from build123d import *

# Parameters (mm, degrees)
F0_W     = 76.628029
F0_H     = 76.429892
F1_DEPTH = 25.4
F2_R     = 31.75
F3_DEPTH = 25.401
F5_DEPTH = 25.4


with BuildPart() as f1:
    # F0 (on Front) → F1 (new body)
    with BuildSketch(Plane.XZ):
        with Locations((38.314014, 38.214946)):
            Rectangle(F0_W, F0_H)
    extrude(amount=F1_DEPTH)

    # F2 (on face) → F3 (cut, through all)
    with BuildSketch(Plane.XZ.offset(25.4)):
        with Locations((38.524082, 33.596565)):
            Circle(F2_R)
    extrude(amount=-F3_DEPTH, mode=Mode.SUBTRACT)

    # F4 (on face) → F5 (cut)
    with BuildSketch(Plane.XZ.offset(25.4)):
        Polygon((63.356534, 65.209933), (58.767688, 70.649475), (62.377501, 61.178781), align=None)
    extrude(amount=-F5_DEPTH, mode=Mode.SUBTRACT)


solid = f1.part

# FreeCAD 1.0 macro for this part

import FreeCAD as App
import Part
import Sketcher
from FreeCAD import Vector
Q = App.Units.Quantity

doc = App.newDocument("Part")
params = doc.addObject("Spreadsheet::Sheet", "Params")
for row, (alias, value) in enumerate([
    ("pad1_length", "1 in"),
    ("sketch2_diameter", "2.5 in"),
    ("pocket2_length", "1 in"),
], start=1):
    params.set(f"A{row}", alias)
    params.set(f"B{row}", "=" + value)
    params.setAlias(f"B{row}", alias)

body = doc.addObject("PartDesign::Body", "Body")

sketch1 = body.newObject("Sketcher::SketchObject", "Sketch")
sketch1.AttachmentSupport = (doc.getObject("XZ_Plane"), [""])
sketch1.MapMode = "FlatFace"
sketch1.addGeometry(Part.LineSegment(Vector(0, 76, 0), Vector(0, 0, 0)), False)
sketch1.addGeometry(Part.LineSegment(Vector(0, 0, 0), Vector(77, 0, 0)), False)
sketch1.addGeometry(Part.LineSegment(Vector(77, 0, 0), Vector(77, 76, 0)), False)
sketch1.addGeometry(Part.LineSegment(Vector(77, 76, 0), Vector(0, 76, 0)), False)
sketch1.addConstraint(Sketcher.Constraint("Coincident", 0, 2, 1, 1))
sketch1.addConstraint(Sketcher.Constraint("Coincident", 1, 2, 2, 1))
sketch1.addConstraint(Sketcher.Constraint("Coincident", 2, 2, 3, 1))
sketch1.addConstraint(Sketcher.Constraint("Coincident", 3, 2, 0, 1))
sketch1.addConstraint(Sketcher.Constraint("Vertical", 0))
sketch1.addConstraint(Sketcher.Constraint("Horizontal", 1))
sketch1.addConstraint(Sketcher.Constraint("Vertical", 2))
sketch1.addConstraint(Sketcher.Constraint("Horizontal", 3))
sketch1.addConstraint(Sketcher.Constraint("Coincident", 0, 2, -1, 1))
sketch1.addConstraint(Sketcher.Constraint("DistanceX", 1, 1, 1, 2, 76.628029))
sketch1.addConstraint(Sketcher.Constraint("DistanceY", 0, 2, 0, 1, 76.429892))
pad1 = body.newObject("PartDesign::Pad", "Pad")
pad1.Profile = sketch1
pad1.setExpression("Length", "Params.pad1_length")

sketch2 = body.newObject("Sketcher::SketchObject", "Sketch001")
sketch2.AttachmentSupport = (doc.getObject("XZ_Plane"), [""])
sketch2.MapMode = "FlatFace"
sketch2.AttachmentOffset = App.Placement(Vector(0, 0, 1 * 25.4), App.Rotation())
sketch2.addGeometry(Part.Circle(Vector(39, 34, 0), Vector(0, 0, 1), 32), False)
sketch2.addConstraint(Sketcher.Constraint("Diameter", 0, Q("2.5 in")))
sketch2.addConstraint(Sketcher.Constraint("DistanceX", -1, 1, 0, 3, 38.524082))
sketch2.addConstraint(Sketcher.Constraint("DistanceY", -1, 1, 0, 3, 33.596565))
sketch2.setExpression("Constraints[0]", "Params.sketch2_diameter")
pocket1 = body.newObject("PartDesign::Pocket", "Pocket")
pocket1.Profile = sketch2
pocket1.Type = "ThroughAll"

sketch3 = body.newObject("Sketcher::SketchObject", "Sketch002")
sketch3.AttachmentSupport = (doc.getObject("XZ_Plane"), [""])
sketch3.MapMode = "FlatFace"
sketch3.AttachmentOffset = App.Placement(Vector(0, 0, 1 * 25.4), App.Rotation())
sketch3.addGeometry(Part.LineSegment(Vector(63.4, 65.2, 0), Vector(58.8, 70.6, 0)), False)
sketch3.addGeometry(Part.LineSegment(Vector(58.8, 70.6, 0), Vector(62.4, 61.2, 0)), False)
sketch3.addGeometry(Part.LineSegment(Vector(62.4, 61.2, 0), Vector(63.4, 65.2, 0)), False)
sketch3.addConstraint(Sketcher.Constraint("Coincident", 0, 2, 1, 1))
sketch3.addConstraint(Sketcher.Constraint("Coincident", 1, 2, 2, 1))
sketch3.addConstraint(Sketcher.Constraint("Coincident", 2, 2, 0, 1))
sketch3.addConstraint(Sketcher.Constraint("DistanceX", -1, 1, 1, 2, 62.377501))
sketch3.addConstraint(Sketcher.Constraint("Distance", 0, 7.116609))
sketch3.addConstraint(Sketcher.Constraint("DistanceY", -1, 1, 1, 2, 61.178781))
sketch3.addConstraint(Sketcher.Constraint("DistanceY", 2, 2, 0, 2, 5.439542))
sketch3.addConstraint(Sketcher.Constraint("Distance", 1, 10.135324))
sketch3.addConstraint(Sketcher.Constraint("Distance", 2, 4.148336))
pocket2 = body.newObject("PartDesign::Pocket", "Pocket001")
pocket2.Profile = sketch3
pocket2.setExpression("Length", "Params.pocket2_length")

doc.recompute()
